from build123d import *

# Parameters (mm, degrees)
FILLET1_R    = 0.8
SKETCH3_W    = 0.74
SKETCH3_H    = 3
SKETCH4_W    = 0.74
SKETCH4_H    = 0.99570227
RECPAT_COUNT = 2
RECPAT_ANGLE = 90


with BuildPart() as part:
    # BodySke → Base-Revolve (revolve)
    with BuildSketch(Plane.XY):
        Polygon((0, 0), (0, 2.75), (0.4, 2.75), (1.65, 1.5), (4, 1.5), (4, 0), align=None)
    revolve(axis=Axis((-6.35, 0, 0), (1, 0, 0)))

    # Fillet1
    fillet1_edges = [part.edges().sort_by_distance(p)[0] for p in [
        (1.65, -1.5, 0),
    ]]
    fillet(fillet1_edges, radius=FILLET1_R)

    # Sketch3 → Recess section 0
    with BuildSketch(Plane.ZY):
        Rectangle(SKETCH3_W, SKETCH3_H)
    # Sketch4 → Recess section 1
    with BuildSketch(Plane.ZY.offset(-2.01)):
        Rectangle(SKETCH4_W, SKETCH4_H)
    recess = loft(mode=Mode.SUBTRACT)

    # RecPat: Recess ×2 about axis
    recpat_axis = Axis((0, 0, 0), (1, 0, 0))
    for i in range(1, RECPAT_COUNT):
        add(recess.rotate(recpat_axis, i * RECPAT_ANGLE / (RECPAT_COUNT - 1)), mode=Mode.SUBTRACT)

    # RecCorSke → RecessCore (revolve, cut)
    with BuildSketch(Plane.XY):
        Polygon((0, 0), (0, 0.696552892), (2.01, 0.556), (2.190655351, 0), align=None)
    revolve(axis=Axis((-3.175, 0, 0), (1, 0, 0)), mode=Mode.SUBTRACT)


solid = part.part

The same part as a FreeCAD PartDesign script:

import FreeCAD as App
import Part
import Sketcher

V = App.Vector
Q = App.Units.Quantity


def edges_at(feature, points):
    """Names of the edges that pass closest to the given points."""
    edges = feature.Shape.Edges
    near = lambda p: min(range(len(edges)), key=lambda i: edges[i].distToShape(Part.Vertex(*p))[0])
    return sorted({f"Edge{near(p) + 1}" for p in points})

doc = App.newDocument("Part")
body = doc.addObject("PartDesign::Body", "Body")

# Sketch on XY plane
sketch1 = body.newObject("Sketcher::SketchObject", "Sketch")
sketch1.AttachmentSupport = (doc.getObject("XY_Plane"), [""])
sketch1.MapMode = "FlatFace"
sketch1.addGeometry([
    Part.LineSegment(V(0, 2.75, 0), V(0, 0, 0)),  # 0
    Part.LineSegment(V(0, 0, 0), V(4, 0, 0)),  # 1
    Part.LineSegment(V(4, 0, 0), V(4, 1.5, 0)),  # 2
    Part.LineSegment(V(4, 1.5, 0), V(1.65, 1.5, 0)),  # 3
    Part.LineSegment(V(1.65, 1.5, 0), V(0.4, 2.75, 0)),  # 4
    Part.LineSegment(V(0.4, 2.75, 0), V(0, 2.75, 0)),  # 5
], False)
sketch1.addConstraint([
    Sketcher.Constraint("Coincident", 0, 2, 1, 1),
    Sketcher.Constraint("Coincident", 1, 2, 2, 1),
    Sketcher.Constraint("Coincident", 2, 2, 3, 1),
    Sketcher.Constraint("Coincident", 3, 2, 4, 1),
    Sketcher.Constraint("Coincident", 4, 2, 5, 1),
    Sketcher.Constraint("Coincident", 5, 2, 0, 1),
    Sketcher.Constraint("Vertical", 0),
    Sketcher.Constraint("Horizontal", 1),
    Sketcher.Constraint("Vertical", 2),
    Sketcher.Constraint("Horizontal", 3),
    Sketcher.Constraint("Horizontal", 5),
    Sketcher.Constraint("Coincident", 0, 2, -1, 1),
    Sketcher.Constraint("DistanceX", 1, 1, 1, 2, Q("4 mm")),
    Sketcher.Constraint("Angle", 4, Q("135 deg")),
    Sketcher.Constraint("DistanceX", 5, 2, 5, 1, Q("0.4 mm")),
    Sketcher.Constraint("DistanceY", 2, 1, 2, 2, Q("1.5 mm")),
    Sketcher.Constraint("DistanceX", 3, 2, 3, 1, Q("2.35 mm")),
])
revolution = body.newObject("PartDesign::Revolution", "Revolution")
revolution.Profile = sketch1
revolution.ReferenceAxis = (sketch1, ["H_Axis"])
revolution.Angle = 360
doc.recompute()

fillet = body.newObject("PartDesign::Fillet", "Fillet")
fillet.Base = (revolution, edges_at(revolution, [(1.65, -1.5, 0)]))
fillet.Radius = 0.8

# Sketch on YZ plane
sketch2 = body.newObject("Sketcher::SketchObject", "Sketch001")
sketch2.AttachmentSupport = (doc.getObject("YZ_Plane"), [""])
sketch2.MapMode = "FlatFace"
sketch2.addGeometry([
    Part.LineSegment(V(1.5, -0.4, 0), V(-1.5, -0.4, 0)),
    Part.LineSegment(V(-1.5, -0.4, 0), V(-1.5, 0.4, 0)),
    Part.LineSegment(V(-1.5, 0.4, 0), V(1.5, 0.4, 0)),
    Part.LineSegment(V(1.5, 0.4, 0), V(1.5, -0.4, 0)),
], False)
sketch2.addConstraint([
    Sketcher.Constraint("Coincident", 0, 2, 1, 1),
    Sketcher.Constraint("Coincident", 1, 2, 2, 1),
    Sketcher.Constraint("Coincident", 2, 2, 3, 1),
    Sketcher.Constraint("Coincident", 3, 2, 0, 1),
    Sketcher.Constraint("Horizontal", 0),
    Sketcher.Constraint("Vertical", 1),
    Sketcher.Constraint("Horizontal", 2),
    Sketcher.Constraint("Vertical", 3),
    Sketcher.Constraint("Symmetric", 0, 2, 2, 2, -1, 1),
    Sketcher.Constraint("DistanceX", 0, 2, 0, 1, Q("3 mm")),
    Sketcher.Constraint("DistanceY", 1, 1, 1, 2, Q("0.74 mm")),
])

# Sketch on YZ plane
sketch3 = body.newObject("Sketcher::SketchObject", "Sketch002")
sketch3.AttachmentSupport = (doc.getObject("YZ_Plane"), [""])
sketch3.MapMode = "FlatFace"
sketch3.AttachmentOffset = App.Placement(V(0, 0, 2.01), App.Rotation())
sketch3.addGeometry([
    Part.LineSegment(V(0.5, -0.4, 0), V(-0.5, -0.4, 0)),
    Part.LineSegment(V(-0.5, -0.4, 0), V(-0.5, 0.4, 0)),
    Part.LineSegment(V(-0.5, 0.4, 0), V(0.5, 0.4, 0)),
    Part.LineSegment(V(0.5, 0.4, 0), V(0.5, -0.4, 0)),
], False)
sketch3.addConstraint([
    Sketcher.Constraint("Coincident", 0, 2, 1, 1),
    Sketcher.Constraint("Coincident", 1, 2, 2, 1),
    Sketcher.Constraint("Coincident", 2, 2, 3, 1),
    Sketcher.Constraint("Coincident", 3, 2, 0, 1),
    Sketcher.Constraint("Horizontal", 0),
    Sketcher.Constraint("Vertical", 1),
    Sketcher.Constraint("Horizontal", 2),
    Sketcher.Constraint("Vertical", 3),
    Sketcher.Constraint("Symmetric", 0, 2, 2, 2, -1, 1),
    Sketcher.Constraint("DistanceY", 1, 1, 1, 2, Q("0.74 mm")),
    Sketcher.Constraint("DistanceX", 0, 2, 0, 1, Q("0.995702 mm")),
])

subtractiveloft = body.newObject("PartDesign::SubtractiveLoft", "SubtractiveLoft")
subtractiveloft.Profile = sketch2
subtractiveloft.Sections = [sketch3]
doc.recompute()

polarpattern = body.newObject("PartDesign::PolarPattern", "PolarPattern")
polarpattern.Originals = [subtractiveloft]
polarpattern.Axis = (doc.getObject("X_Axis"), [""])
polarpattern.Angle = 90
polarpattern.Occurrences = 2
body.Tip = polarpattern

# Sketch on XY plane
sketch4 = body.newObject("Sketcher::SketchObject", "Sketch003")
sketch4.AttachmentSupport = (doc.getObject("XY_Plane"), [""])
sketch4.MapMode = "FlatFace"
sketch4.addGeometry([
    Part.LineSegment(V(0, 0.7, 0), V(0, 0, 0)),
    Part.LineSegment(V(0, 0, 0), V(2.2, 0, 0)),
    Part.LineSegment(V(2.2, 0, 0), V(2, 0.6, 0)),
    Part.LineSegment(V(2, 0.6, 0), V(0, 0.7, 0)),
], False)
sketch4.addConstraint([
    Sketcher.Constraint("Coincident", 0, 2, 1, 1),
    Sketcher.Constraint("Coincident", 1, 2, 2, 1),
    Sketcher.Constraint("Coincident", 2, 2, 3, 1),
    Sketcher.Constraint("Coincident", 3, 2, 0, 1),
    Sketcher.Constraint("Vertical", 0),
    Sketcher.Constraint("Horizontal", 1),
    Sketcher.Constraint("Coincident", 0, 2, -1, 1),
    Sketcher.Constraint("Angle", 2, Q("108 deg")),
    Sketcher.Constraint("Angle", 3, Q("176 deg")),
    Sketcher.Constraint("DistanceX", -1, 1, 2, 2, Q("2.01 mm")),
    Sketcher.Constraint("DistanceY", -1, 1, 2, 2, Q("0.556 mm")),
])
groove = body.newObject("PartDesign::Groove", "Groove")
groove.Profile = sketch4
groove.ReferenceAxis = (sketch4, ["H_Axis"])
groove.Angle = 360

doc.recompute()
